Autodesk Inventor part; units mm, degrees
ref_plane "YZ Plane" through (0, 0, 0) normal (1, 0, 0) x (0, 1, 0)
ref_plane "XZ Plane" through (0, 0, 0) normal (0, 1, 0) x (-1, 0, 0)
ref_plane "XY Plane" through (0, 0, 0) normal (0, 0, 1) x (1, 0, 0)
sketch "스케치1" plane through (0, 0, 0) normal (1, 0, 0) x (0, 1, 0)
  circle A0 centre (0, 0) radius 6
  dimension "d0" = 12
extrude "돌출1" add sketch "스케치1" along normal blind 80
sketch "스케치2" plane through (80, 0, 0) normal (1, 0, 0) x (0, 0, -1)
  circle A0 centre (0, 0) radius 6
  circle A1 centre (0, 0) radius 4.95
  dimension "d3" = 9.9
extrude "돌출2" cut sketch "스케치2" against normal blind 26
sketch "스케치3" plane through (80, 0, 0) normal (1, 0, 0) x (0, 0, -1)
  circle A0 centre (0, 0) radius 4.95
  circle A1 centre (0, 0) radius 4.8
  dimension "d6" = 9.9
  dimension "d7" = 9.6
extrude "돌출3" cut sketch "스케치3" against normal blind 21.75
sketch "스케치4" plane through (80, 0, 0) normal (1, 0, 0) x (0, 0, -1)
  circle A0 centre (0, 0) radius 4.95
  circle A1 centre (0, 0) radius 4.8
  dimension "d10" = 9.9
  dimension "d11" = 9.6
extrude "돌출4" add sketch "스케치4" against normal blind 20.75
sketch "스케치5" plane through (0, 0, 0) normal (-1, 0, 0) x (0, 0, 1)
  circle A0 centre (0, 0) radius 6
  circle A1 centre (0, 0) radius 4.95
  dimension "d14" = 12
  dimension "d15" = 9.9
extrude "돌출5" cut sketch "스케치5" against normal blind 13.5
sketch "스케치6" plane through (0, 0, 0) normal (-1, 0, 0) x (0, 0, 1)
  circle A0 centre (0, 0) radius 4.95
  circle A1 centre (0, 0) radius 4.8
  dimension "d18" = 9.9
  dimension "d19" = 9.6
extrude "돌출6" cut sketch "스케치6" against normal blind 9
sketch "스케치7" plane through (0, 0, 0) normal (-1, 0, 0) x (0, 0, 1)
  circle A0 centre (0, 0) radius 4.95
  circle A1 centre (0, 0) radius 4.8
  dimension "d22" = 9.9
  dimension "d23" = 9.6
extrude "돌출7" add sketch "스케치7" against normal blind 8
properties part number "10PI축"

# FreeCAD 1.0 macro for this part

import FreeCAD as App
import Part
import Sketcher
from FreeCAD import Vector

doc = App.newDocument("Part")
body = doc.addObject("PartDesign::Body", "Body")

sketch1 = doc.addObject("Sketcher::SketchObject", "Sketch")
body.addObject(sketch1)
sketch1.AttachmentSupport = (doc.YZ_Plane, [""])
sketch1.MapMode = "FlatFace"
sketch1.addGeometry(Part.Circle(Vector(0, 0, 0), Vector(0, 0, 1), 6), False)
sketch1.addConstraint([
    Sketcher.Constraint("Coincident", 0, 3, -1, 1),
    Sketcher.Constraint("Diameter", 0, 12.0),
])
pad1 = doc.addObject("PartDesign::Pad", "Pad")
body.addObject(pad1)
pad1.Profile = sketch1
pad1.Length = 80

sketch2 = doc.addObject("Sketcher::SketchObject", "Sketch001")
body.addObject(sketch2)
sketch2.AttachmentSupport = (doc.YZ_Plane, [""])
sketch2.MapMode = "FlatFace"
sketch2.AttachmentOffset = App.Placement(Vector(0, 0, 80), App.Rotation())
sketch2.addGeometry([
    Part.Circle(Vector(0, 0, 0), Vector(0, 0, 1), 6),
    Part.Circle(Vector(0, 0, 0), Vector(0, 0, 1), 4.95),
], False)
sketch2.addConstraint([
    Sketcher.Constraint("Coincident", 0, 3, -1, 1),
    Sketcher.Constraint("Coincident", 1, 3, -1, 1),
    Sketcher.Constraint("Diameter", 1, 9.9),
    Sketcher.Constraint("Diameter", 0, 12.0),
])
pocket1 = doc.addObject("PartDesign::Pocket", "Pocket")
body.addObject(pocket1)
pocket1.Profile = sketch2
pocket1.Length = 26

sketch3 = doc.addObject("Sketcher::SketchObject", "Sketch002")
body.addObject(sketch3)
sketch3.AttachmentSupport = (doc.YZ_Plane, [""])
sketch3.MapMode = "FlatFace"
sketch3.AttachmentOffset = App.Placement(Vector(0, 0, 80), App.Rotation())
sketch3.addGeometry([
    Part.Circle(Vector(0, 0, 0), Vector(0, 0, 1), 4.95),
    Part.Circle(Vector(0, 0, 0), Vector(0, 0, 1), 4.8),
], False)
sketch3.addConstraint([
    Sketcher.Constraint("Coincident", 0, 3, -1, 1),
    Sketcher.Constraint("Coincident", 1, 3, -1, 1),
    Sketcher.Constraint("Diameter", 0, 9.9),
    Sketcher.Constraint("Diameter", 1, 9.6),
])
pocket2 = doc.addObject("PartDesign::Pocket", "Pocket001")
body.addObject(pocket2)
pocket2.Profile = sketch3
pocket2.Length = 21.75

sketch4 = doc.addObject("Sketcher::SketchObject", "Sketch003")
body.addObject(sketch4)
sketch4.AttachmentSupport = (doc.YZ_Plane, [""])
sketch4.MapMode = "FlatFace"
sketch4.AttachmentOffset = App.Placement(Vector(0, 0, 80), App.Rotation())
sketch4.addGeometry([
    Part.Circle(Vector(0, 0, 0), Vector(0, 0, 1), 4.95),
    Part.Circle(Vector(0, 0, 0), Vector(0, 0, 1), 4.8),
], False)
sketch4.addConstraint([
    Sketcher.Constraint("Coincident", 0, 3, -1, 1),
    Sketcher.Constraint("Coincident", 1, 3, -1, 1),
    Sketcher.Constraint("Diameter", 0, 9.9),
    Sketcher.Constraint("Diameter", 1, 9.6),
])
pad2 = doc.addObject("PartDesign::Pad", "Pad001")
body.addObject(pad2)
pad2.Profile = sketch4
pad2.Length = 20.75
pad2.Reversed = True

sketch5 = doc.addObject("Sketcher::SketchObject", "Sketch004")
body.addObject(sketch5)
sketch5.AttachmentSupport = (doc.YZ_Plane, [""])
sketch5.MapMode = "FlatFace"
sketch5.addGeometry([
    Part.Circle(Vector(0, 0, 0), Vector(0, 0, 1), 6),
    Part.Circle(Vector(0, 0, 0), Vector(0, 0, 1), 4.95),
], False)
sketch5.addConstraint([
    Sketcher.Constraint("Coincident", 0, 3, -1, 1),
    Sketcher.Constraint("Coincident", 1, 3, -1, 1),
    Sketcher.Constraint("Diameter", 0, 12.0),
    Sketcher.Constraint("Diameter", 1, 9.9),
])
pocket3 = doc.addObject("PartDesign::Pocket", "Pocket002")
body.addObject(pocket3)
pocket3.Profile = sketch5
pocket3.Length = 13.5
pocket3.Reversed = True

sketch6 = doc.addObject("Sketcher::SketchObject", "Sketch005")
body.addObject(sketch6)
sketch6.AttachmentSupport = (doc.YZ_Plane, [""])
sketch6.MapMode = "FlatFace"
sketch6.addGeometry([
    Part.Circle(Vector(0, 0, 0), Vector(0, 0, 1), 4.95),
    Part.Circle(Vector(0, 0, 0), Vector(0, 0, 1), 4.8),
], False)
sketch6.addConstraint([
    Sketcher.Constraint("Coincident", 0, 3, -1, 1),
    Sketcher.Constraint("Coincident", 1, 3, -1, 1),
    Sketcher.Constraint("Diameter", 0, 9.9),
    Sketcher.Constraint("Diameter", 1, 9.6),
])
pocket4 = doc.addObject("PartDesign::Pocket", "Pocket003")
body.addObject(pocket4)
pocket4.Profile = sketch6
pocket4.Length = 9
pocket4.Reversed = True

sketch7 = doc.addObject("Sketcher::SketchObject", "Sketch006")
body.addObject(sketch7)
sketch7.AttachmentSupport = (doc.YZ_Plane, [""])
sketch7.MapMode = "FlatFace"
sketch7.addGeometry([
    Part.Circle(Vector(0, 0, 0), Vector(0, 0, 1), 4.95),
    Part.Circle(Vector(0, 0, 0), Vector(0, 0, 1), 4.8),
], False)
sketch7.addConstraint([
    Sketcher.Constraint("Coincident", 0, 3, -1, 1),
    Sketcher.Constraint("Coincident", 1, 3, -1, 1),
    Sketcher.Constraint("Diameter", 0, 9.9),
    Sketcher.Constraint("Diameter", 1, 9.6),
])
pad3 = doc.addObject("PartDesign::Pad", "Pad002")
body.addObject(pad3)
pad3.Profile = sketch7
pad3.Length = 8

doc.recompute()
